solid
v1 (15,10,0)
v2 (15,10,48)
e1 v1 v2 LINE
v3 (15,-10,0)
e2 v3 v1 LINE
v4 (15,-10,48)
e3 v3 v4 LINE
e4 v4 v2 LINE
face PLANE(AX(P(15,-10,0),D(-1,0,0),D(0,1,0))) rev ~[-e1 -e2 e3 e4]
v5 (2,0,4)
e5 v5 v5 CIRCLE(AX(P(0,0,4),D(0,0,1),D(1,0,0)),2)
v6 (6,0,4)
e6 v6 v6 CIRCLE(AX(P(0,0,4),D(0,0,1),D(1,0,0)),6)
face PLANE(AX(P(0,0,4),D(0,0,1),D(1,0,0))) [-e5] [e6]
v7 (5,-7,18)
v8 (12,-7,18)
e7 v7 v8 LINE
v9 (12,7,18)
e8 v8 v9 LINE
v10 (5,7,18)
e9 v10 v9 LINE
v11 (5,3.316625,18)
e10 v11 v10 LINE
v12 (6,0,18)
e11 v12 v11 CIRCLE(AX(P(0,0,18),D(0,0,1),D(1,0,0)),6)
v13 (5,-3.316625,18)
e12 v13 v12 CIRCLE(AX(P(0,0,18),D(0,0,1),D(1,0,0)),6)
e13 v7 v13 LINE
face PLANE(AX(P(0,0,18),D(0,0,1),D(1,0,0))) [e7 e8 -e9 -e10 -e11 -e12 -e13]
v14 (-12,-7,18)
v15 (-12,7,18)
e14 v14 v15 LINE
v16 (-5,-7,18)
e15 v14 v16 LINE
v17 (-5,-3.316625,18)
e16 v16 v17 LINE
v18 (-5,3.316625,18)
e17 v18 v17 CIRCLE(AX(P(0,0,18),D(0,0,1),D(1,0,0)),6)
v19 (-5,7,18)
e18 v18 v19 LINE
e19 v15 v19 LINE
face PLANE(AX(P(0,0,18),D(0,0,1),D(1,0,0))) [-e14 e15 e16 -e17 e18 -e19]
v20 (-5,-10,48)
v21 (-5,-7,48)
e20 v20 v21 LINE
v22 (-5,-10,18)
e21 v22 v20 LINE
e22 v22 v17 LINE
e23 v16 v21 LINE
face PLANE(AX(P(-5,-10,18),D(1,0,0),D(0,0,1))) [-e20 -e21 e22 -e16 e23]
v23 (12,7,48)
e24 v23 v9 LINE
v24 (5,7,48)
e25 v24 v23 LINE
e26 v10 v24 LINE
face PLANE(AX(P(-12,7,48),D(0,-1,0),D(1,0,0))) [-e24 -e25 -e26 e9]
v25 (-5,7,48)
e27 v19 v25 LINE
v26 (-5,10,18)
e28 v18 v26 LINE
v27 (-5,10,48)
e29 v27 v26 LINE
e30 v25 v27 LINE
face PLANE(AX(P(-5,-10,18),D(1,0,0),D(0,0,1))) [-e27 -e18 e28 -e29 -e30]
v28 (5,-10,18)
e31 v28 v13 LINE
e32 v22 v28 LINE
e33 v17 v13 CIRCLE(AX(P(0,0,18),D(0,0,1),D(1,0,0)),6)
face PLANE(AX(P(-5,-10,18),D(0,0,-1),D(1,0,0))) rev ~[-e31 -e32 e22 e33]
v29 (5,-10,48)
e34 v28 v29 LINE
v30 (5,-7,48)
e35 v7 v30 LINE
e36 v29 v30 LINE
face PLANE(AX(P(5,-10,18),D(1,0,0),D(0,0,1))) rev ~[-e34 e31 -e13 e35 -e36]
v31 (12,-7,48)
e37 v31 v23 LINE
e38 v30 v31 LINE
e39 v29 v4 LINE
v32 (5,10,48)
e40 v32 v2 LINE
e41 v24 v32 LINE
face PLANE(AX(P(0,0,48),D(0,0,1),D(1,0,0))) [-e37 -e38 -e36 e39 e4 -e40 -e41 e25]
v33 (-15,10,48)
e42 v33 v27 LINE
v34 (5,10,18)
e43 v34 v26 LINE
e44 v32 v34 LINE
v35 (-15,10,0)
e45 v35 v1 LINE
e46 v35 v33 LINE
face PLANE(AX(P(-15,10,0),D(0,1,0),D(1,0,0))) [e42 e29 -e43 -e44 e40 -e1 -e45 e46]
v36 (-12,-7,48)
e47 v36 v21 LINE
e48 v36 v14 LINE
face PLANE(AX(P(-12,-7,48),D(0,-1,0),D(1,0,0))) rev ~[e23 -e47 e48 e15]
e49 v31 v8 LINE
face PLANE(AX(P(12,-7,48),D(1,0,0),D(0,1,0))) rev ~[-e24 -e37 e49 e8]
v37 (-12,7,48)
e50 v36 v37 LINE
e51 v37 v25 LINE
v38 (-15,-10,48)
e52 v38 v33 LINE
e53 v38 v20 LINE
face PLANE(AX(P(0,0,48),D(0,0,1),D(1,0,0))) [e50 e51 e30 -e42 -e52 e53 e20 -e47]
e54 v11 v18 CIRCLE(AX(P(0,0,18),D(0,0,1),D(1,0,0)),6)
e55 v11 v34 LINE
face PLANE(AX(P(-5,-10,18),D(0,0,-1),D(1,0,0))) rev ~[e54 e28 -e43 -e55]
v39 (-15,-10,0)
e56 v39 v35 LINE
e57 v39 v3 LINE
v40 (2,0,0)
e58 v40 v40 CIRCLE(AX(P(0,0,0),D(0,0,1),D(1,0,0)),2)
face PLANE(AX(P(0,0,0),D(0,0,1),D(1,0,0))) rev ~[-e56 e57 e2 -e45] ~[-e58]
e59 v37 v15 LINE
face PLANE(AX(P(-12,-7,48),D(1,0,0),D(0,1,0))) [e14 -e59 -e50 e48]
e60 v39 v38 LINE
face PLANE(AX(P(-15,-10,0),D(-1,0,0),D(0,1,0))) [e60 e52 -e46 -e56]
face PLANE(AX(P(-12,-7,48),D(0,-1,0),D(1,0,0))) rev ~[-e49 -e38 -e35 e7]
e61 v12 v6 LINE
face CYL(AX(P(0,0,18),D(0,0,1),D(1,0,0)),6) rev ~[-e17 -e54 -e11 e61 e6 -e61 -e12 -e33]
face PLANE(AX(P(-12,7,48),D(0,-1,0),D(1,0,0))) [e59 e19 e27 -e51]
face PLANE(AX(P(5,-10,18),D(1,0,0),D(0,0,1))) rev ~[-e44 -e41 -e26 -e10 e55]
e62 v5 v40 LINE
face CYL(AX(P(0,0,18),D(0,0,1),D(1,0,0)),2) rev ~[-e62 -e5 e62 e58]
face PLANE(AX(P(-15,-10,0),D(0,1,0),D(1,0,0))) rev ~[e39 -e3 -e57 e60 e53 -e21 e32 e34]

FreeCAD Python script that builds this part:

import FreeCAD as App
import Part
import Sketcher

doc = App.newDocument("Part")
body = doc.addObject("PartDesign::Body", "Body")

# Sketch on XY plane
sketch1 = body.newObject("Sketcher::SketchObject", "Sketch")
sketch1.AttachmentSupport = (doc.getObject("XY_Plane"), [""])
sketch1.MapMode = "FlatFace"
sketch1.addGeometry(Part.LineSegment(App.Vector(-15, 10, 0), App.Vector(-15, -10, 0)), False)
sketch1.addGeometry(Part.LineSegment(App.Vector(-15, -10, 0), App.Vector(15, -10, 0)), False)
sketch1.addGeometry(Part.LineSegment(App.Vector(15, -10, 0), App.Vector(15, 10, 0)), False)
sketch1.addGeometry(Part.LineSegment(App.Vector(15, 10, 0), App.Vector(-15, 10, 0)), False)
sketch1.addConstraint(Sketcher.Constraint("Coincident", 0, 2, 1, 1))
sketch1.addConstraint(Sketcher.Constraint("Coincident", 1, 2, 2, 1))
sketch1.addConstraint(Sketcher.Constraint("Coincident", 2, 2, 3, 1))
sketch1.addConstraint(Sketcher.Constraint("Coincident", 3, 2, 0, 1))
sketch1.addConstraint(Sketcher.Constraint("Vertical", 0))
sketch1.addConstraint(Sketcher.Constraint("Horizontal", 1))
sketch1.addConstraint(Sketcher.Constraint("Vertical", 2))
sketch1.addConstraint(Sketcher.Constraint("Horizontal", 3))
sketch1.addConstraint(Sketcher.Constraint("Symmetric", 0, 2, 2, 2, -1, 1))
sketch1.addConstraint(Sketcher.Constraint("DistanceX", 1, 1, 1, 2, 30.0))
sketch1.addConstraint(Sketcher.Constraint("DistanceY", 0, 2, 0, 1, 20.0))
pad1 = body.newObject("PartDesign::Pad", "Pad")
pad1.Profile = sketch1
pad1.Length = 48

# Sketch on XY plane
sketch2 = body.newObject("Sketcher::SketchObject", "Sketch001")
sketch2.AttachmentSupport = (doc.getObject("XY_Plane"), [""])
sketch2.MapMode = "FlatFace"
sketch2.AttachmentOffset = App.Placement(App.Vector(0, 0, 48), App.Rotation())
sketch2.addGeometry(Part.LineSegment(App.Vector(-12, 7, 0), App.Vector(-12, -7, 0)), False)
sketch2.addGeometry(Part.LineSegment(App.Vector(-12, -7, 0), App.Vector(12, -7, 0)), False)
sketch2.addGeometry(Part.LineSegment(App.Vector(12, -7, 0), App.Vector(12, 7, 0)), False)
sketch2.addGeometry(Part.LineSegment(App.Vector(12, 7, 0), App.Vector(-12, 7, 0)), False)
sketch2.addConstraint(Sketcher.Constraint("Coincident", 0, 2, 1, 1))
sketch2.addConstraint(Sketcher.Constraint("Coincident", 1, 2, 2, 1))
sketch2.addConstraint(Sketcher.Constraint("Coincident", 2, 2, 3, 1))
sketch2.addConstraint(Sketcher.Constraint("Coincident", 3, 2, 0, 1))
sketch2.addConstraint(Sketcher.Constraint("Vertical", 0))
sketch2.addConstraint(Sketcher.Constraint("Horizontal", 1))
sketch2.addConstraint(Sketcher.Constraint("Vertical", 2))
sketch2.addConstraint(Sketcher.Constraint("Horizontal", 3))
sketch2.addConstraint(Sketcher.Constraint("Symmetric", 0, 2, 2, 2, -1, 1))
sketch2.addConstraint(Sketcher.Constraint("DistanceX", 1, 1, 1, 2, 24.0))
sketch2.addConstraint(Sketcher.Constraint("DistanceY", 0, 2, 0, 1, 14.0))
pocket1 = body.newObject("PartDesign::Pocket", "Pocket")
pocket1.Profile = sketch2
pocket1.Length = 30

# Sketch on XY plane
sketch3 = body.newObject("Sketcher::SketchObject", "Sketch002")
sketch3.AttachmentSupport = (doc.getObject("XY_Plane"), [""])
sketch3.MapMode = "FlatFace"
sketch3.AttachmentOffset = App.Placement(App.Vector(0, 0, 18), App.Rotation())
sketch3.addGeometry(Part.Circle(App.Vector(0, 0, 0), App.Vector(0, 0, 1), 2), False)
sketch3.addConstraint(Sketcher.Constraint("Coincident", 0, 3, -1, 1))
sketch3.addConstraint(Sketcher.Constraint("Diameter", 0, 4.0))
pocket2 = body.newObject("PartDesign::Pocket", "Pocket001")
pocket2.Profile = sketch3
pocket2.Type = "ThroughAll"

# Sketch on XY plane
sketch4 = body.newObject("Sketcher::SketchObject", "Sketch003")
sketch4.AttachmentSupport = (doc.getObject("XY_Plane"), [""])
sketch4.MapMode = "FlatFace"
sketch4.AttachmentOffset = App.Placement(App.Vector(0, 0, 18), App.Rotation())
sketch4.addGeometry(Part.Circle(App.Vector(0, 0, 0), App.Vector(0, 0, 1), 6), False)
sketch4.addConstraint(Sketcher.Constraint("Coincident", 0, 3, -1, 1))
sketch4.addConstraint(Sketcher.Constraint("Diameter", 0, 12.0))
pocket3 = body.newObject("PartDesign::Pocket", "Pocket002")
pocket3.Profile = sketch4
pocket3.Length = 14

# Sketch on XZ plane
sketch5 = body.newObject("Sketcher::SketchObject", "Sketch004")
sketch5.AttachmentSupport = (doc.getObject("XZ_Plane"), [""])
sketch5.MapMode = "FlatFace"
sketch5.AttachmentOffset = App.Placement(App.Vector(0, 0, 10), App.Rotation())
sketch5.addGeometry(Part.LineSegment(App.Vector(-5, 49.196078, 0), App.Vector(-5, 18, 0)), False)
sketch5.addGeometry(Part.LineSegment(App.Vector(-5, 18, 0), App.Vector(5, 18, 0)), False)
sketch5.addGeometry(Part.LineSegment(App.Vector(5, 18, 0), App.Vector(5, 49.196078, 0)), False)
sketch5.addGeometry(Part.LineSegment(App.Vector(5, 49.196078, 0), App.Vector(-5, 49.196078, 0)), False)
sketch5.addConstraint(Sketcher.Constraint("Coincident", 0, 2, 1, 1))
sketch5.addConstraint(Sketcher.Constraint("Coincident", 1, 2, 2, 1))
sketch5.addConstraint(Sketcher.Constraint("Coincident", 2, 2, 3, 1))
sketch5.addConstraint(Sketcher.Constraint("Coincident", 3, 2, 0, 1))
sketch5.addConstraint(Sketcher.Constraint("Vertical", 0))
sketch5.addConstraint(Sketcher.Constraint("Horizontal", 1))
sketch5.addConstraint(Sketcher.Constraint("Vertical", 2))
sketch5.addConstraint(Sketcher.Constraint("Horizontal", 3))
sketch5.addConstraint(Sketcher.Constraint("DistanceX", 1, 1, 1, 2, 10.0))
sketch5.addConstraint(Sketcher.Constraint("DistanceX", 0, 2, -1, 1, 5.0))
sketch5.addConstraint(Sketcher.Constraint("DistanceY", -1, 1, 0, 2, 18.0))
sketch5.addConstraint(Sketcher.Constraint("DistanceY", 0, 2, 0, 1, 31.196079))
pocket4 = body.newObject("PartDesign::Pocket", "Pocket003")
pocket4.Profile = sketch5
pocket4.Type = "ThroughAll"

doc.recompute()
